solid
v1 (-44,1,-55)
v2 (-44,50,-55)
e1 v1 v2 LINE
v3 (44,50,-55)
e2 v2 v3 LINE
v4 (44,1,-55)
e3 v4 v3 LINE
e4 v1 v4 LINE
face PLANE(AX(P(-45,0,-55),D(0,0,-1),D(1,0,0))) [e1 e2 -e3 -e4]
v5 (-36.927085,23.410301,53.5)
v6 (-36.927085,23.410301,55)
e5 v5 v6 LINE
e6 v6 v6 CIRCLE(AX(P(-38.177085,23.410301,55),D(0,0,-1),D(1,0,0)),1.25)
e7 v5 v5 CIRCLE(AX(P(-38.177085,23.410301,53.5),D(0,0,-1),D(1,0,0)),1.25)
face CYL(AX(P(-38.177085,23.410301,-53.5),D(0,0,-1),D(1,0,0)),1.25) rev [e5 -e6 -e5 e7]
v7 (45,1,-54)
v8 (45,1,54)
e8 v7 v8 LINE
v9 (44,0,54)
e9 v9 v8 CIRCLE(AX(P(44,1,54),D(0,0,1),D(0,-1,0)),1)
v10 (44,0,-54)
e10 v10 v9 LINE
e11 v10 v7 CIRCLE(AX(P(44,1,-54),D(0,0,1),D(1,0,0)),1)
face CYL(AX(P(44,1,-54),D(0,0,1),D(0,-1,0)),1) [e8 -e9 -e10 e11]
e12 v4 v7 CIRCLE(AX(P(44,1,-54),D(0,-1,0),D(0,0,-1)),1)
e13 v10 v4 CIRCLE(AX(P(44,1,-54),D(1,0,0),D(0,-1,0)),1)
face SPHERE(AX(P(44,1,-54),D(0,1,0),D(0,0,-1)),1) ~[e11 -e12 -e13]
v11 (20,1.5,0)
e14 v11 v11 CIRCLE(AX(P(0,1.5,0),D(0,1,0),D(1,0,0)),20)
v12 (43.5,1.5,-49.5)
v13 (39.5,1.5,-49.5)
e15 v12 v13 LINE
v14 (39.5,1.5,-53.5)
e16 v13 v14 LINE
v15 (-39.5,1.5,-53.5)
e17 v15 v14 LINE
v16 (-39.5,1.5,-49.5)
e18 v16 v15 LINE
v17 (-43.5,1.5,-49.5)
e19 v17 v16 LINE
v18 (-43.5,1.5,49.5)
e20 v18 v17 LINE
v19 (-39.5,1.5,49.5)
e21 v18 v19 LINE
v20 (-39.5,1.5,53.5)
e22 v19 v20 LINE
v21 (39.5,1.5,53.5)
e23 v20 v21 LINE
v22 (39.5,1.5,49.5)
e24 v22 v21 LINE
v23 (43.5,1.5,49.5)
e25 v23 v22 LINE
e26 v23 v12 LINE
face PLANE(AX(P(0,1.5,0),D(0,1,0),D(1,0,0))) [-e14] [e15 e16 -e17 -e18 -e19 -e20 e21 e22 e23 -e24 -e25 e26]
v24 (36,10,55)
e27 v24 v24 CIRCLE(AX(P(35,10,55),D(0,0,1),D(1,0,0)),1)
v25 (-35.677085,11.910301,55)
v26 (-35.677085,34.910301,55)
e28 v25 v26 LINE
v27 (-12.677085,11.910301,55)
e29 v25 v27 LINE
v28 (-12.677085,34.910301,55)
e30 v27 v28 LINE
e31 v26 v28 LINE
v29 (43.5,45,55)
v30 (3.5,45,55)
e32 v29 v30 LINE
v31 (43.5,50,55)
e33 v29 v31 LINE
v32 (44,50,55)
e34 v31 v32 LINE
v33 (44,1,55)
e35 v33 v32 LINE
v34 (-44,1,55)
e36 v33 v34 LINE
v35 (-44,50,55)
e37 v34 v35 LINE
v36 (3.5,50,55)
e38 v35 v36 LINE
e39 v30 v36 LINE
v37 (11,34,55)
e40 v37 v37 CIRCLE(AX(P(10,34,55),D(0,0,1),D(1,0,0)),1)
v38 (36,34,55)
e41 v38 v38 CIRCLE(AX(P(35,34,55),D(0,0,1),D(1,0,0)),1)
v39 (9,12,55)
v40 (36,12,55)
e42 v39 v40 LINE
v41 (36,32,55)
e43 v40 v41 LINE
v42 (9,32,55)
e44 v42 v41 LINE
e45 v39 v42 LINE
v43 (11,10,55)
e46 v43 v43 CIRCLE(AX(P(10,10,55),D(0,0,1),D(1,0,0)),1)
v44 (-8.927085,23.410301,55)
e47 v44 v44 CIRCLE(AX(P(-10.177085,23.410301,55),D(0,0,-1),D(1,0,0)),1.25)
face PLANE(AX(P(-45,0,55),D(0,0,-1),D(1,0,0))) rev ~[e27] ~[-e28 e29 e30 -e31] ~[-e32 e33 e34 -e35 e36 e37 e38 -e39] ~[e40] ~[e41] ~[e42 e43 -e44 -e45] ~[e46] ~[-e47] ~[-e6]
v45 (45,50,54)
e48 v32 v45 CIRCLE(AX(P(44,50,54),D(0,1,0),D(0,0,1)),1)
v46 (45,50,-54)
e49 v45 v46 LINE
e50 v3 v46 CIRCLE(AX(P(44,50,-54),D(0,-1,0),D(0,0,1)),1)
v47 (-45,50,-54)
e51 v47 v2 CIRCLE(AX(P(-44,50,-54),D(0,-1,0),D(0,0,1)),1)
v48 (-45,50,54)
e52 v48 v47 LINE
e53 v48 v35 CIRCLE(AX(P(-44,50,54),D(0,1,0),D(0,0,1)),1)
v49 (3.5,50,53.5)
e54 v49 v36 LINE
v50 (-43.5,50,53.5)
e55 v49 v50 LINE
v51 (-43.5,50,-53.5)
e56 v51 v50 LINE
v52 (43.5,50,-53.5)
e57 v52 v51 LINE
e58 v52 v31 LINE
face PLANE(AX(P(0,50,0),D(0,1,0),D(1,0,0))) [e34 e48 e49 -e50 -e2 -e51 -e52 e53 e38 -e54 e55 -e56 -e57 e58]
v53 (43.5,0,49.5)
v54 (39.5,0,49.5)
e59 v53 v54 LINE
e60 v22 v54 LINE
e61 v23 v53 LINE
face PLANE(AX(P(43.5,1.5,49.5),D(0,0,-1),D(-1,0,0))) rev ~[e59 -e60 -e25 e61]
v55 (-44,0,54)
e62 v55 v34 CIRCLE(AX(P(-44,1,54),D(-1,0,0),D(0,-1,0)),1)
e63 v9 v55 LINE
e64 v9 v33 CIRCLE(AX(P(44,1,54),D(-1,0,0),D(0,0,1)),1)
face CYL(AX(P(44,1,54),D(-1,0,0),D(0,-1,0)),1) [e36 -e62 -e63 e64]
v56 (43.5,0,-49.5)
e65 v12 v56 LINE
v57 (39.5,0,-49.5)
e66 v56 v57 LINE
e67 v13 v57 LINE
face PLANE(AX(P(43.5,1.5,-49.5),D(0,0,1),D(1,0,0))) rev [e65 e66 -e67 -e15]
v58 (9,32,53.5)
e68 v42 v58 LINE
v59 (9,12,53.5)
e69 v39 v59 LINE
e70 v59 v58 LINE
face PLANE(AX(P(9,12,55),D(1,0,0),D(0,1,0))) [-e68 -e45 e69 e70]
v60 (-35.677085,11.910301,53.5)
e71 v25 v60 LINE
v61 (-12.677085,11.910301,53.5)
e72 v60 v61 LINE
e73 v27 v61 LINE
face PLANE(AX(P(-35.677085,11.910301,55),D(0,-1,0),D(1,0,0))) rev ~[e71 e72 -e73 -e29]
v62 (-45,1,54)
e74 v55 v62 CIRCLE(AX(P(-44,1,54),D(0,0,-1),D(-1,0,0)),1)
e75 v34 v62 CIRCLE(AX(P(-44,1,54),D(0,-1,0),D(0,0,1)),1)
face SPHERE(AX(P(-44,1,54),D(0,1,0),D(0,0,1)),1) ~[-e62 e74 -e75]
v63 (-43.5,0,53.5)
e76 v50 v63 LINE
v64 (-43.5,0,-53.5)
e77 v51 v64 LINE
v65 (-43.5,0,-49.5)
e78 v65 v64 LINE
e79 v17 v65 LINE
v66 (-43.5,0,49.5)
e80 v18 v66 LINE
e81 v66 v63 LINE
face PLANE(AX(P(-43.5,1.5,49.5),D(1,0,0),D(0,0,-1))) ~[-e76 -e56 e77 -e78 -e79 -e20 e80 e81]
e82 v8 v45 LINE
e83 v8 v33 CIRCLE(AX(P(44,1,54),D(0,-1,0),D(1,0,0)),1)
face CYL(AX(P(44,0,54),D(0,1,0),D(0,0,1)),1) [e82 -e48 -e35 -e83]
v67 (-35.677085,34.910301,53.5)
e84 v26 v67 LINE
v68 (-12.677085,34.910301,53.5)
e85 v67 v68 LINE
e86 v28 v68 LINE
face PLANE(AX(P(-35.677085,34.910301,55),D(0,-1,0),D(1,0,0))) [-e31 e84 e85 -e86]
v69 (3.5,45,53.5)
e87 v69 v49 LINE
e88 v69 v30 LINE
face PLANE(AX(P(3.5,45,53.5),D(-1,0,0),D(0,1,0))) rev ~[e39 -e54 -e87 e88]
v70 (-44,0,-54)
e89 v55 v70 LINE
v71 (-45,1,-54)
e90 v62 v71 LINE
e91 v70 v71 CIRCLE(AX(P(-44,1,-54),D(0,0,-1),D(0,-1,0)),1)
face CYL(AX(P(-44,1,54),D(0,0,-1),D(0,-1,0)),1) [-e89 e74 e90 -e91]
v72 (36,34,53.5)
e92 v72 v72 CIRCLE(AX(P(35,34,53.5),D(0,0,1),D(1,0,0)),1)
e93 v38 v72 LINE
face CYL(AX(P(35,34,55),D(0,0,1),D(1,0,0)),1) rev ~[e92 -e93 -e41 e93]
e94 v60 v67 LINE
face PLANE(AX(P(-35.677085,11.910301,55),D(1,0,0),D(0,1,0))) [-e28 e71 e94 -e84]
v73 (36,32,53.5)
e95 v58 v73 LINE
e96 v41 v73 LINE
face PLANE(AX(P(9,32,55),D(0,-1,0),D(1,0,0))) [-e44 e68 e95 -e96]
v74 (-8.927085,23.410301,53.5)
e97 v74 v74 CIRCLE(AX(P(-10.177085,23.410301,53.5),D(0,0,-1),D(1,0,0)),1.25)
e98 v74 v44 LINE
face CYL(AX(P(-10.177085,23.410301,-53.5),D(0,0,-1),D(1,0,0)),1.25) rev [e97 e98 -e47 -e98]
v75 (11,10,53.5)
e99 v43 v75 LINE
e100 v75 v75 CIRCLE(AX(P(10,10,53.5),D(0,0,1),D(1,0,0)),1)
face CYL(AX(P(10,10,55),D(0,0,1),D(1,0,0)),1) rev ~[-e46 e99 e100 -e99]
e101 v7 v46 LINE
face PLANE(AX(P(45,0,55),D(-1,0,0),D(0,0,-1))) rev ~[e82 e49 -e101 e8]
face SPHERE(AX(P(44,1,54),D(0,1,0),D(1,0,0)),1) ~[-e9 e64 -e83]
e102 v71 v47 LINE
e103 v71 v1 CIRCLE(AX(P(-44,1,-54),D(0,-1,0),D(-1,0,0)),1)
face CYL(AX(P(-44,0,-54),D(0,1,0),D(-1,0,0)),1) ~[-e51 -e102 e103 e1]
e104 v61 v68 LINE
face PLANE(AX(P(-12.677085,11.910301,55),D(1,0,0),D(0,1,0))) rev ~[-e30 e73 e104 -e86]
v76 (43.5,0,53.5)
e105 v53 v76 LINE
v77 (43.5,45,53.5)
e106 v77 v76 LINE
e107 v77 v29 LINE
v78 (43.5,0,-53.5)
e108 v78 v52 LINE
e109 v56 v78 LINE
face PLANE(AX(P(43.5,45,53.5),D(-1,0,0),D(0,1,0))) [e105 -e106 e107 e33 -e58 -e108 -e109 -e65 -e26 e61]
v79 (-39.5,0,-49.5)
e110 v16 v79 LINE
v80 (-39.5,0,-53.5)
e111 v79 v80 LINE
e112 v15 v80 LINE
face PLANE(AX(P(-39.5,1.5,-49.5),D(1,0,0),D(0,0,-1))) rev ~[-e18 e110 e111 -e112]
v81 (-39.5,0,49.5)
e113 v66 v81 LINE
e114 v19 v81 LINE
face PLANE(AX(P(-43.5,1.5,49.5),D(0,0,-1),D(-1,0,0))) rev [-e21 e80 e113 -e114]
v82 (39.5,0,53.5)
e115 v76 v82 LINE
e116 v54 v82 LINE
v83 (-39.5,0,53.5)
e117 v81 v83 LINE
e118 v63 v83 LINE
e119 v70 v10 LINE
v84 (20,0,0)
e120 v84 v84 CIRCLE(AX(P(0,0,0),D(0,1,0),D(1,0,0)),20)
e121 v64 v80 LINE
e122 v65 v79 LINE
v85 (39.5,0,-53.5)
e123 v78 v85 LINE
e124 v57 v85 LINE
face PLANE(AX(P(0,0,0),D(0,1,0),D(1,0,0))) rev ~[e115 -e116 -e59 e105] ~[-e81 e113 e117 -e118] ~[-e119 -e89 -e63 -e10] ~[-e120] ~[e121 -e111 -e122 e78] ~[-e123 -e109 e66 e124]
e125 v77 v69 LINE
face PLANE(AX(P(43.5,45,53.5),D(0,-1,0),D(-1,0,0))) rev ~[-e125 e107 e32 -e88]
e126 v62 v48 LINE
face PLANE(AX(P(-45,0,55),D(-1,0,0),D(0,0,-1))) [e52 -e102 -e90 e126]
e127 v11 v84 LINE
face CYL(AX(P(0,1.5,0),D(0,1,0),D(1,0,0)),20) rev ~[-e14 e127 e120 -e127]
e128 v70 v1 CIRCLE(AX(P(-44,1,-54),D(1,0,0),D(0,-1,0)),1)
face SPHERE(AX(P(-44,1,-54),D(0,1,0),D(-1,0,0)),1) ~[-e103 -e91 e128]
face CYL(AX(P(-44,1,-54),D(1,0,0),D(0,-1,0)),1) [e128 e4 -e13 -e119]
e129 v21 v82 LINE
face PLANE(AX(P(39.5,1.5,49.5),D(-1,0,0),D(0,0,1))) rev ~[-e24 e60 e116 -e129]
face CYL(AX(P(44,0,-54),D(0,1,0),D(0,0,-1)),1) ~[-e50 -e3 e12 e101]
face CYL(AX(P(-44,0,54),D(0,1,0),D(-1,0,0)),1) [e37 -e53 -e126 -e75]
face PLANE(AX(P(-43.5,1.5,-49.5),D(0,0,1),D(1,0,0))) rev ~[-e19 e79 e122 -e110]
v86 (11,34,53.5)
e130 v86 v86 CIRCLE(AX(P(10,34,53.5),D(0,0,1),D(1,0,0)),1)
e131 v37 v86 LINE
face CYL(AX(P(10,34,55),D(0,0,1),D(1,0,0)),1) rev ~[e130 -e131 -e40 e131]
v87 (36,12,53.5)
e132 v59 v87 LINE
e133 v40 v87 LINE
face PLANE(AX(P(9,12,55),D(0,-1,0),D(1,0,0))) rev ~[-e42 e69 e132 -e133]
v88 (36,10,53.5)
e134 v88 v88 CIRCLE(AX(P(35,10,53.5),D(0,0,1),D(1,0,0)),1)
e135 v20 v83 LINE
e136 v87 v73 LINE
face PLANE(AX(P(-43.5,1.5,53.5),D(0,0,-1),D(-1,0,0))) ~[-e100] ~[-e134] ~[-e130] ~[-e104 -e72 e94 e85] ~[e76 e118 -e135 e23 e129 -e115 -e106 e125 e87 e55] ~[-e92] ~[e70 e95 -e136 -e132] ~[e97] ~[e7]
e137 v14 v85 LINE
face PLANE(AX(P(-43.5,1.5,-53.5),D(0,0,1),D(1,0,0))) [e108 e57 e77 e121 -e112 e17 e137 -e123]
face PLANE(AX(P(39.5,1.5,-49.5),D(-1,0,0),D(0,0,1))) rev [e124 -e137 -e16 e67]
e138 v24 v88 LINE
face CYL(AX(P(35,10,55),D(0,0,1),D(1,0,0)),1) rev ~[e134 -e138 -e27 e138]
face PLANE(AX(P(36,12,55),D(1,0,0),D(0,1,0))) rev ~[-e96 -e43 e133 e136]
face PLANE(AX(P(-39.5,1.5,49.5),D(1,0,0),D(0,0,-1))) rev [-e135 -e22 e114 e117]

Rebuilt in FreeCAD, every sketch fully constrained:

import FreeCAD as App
import Part
import Sketcher

V = App.Vector
Q = App.Units.Quantity


def edges_at(feature, points):
    """Names of the edges that pass closest to the given points."""
    edges = feature.Shape.Edges
    near = lambda p: min(range(len(edges)), key=lambda i: edges[i].distToShape(Part.Vertex(*p))[0])
    return sorted({f"Edge{near(p) + 1}" for p in points})


def faces_at(feature, points):
    """Names of the faces that lie closest to the given points."""
    faces = feature.Shape.Faces
    near = lambda p: min(range(len(faces)), key=lambda i: faces[i].distToShape(Part.Vertex(*p))[0])
    return sorted({f"Face{near(p) + 1}" for p in points})


def add_polygon(sketch, points):
    """Adds a closed chain of lines whose ends are joined by coincident constraints."""
    first, n = sketch.GeometryCount, len(points)
    for a, b in zip(points, points[1:] + points[:1]):
        sketch.addGeometry(Part.LineSegment(App.Vector(*a, 0), App.Vector(*b, 0)), False)
    for i in range(n):
        sketch.addConstraint(Sketcher.Constraint("Coincident", first + i, 2, first + (i + 1) % n, 1))

doc = App.newDocument("Part")
body = doc.addObject("PartDesign::Body", "Body")

sketch1 = body.newObject("Sketcher::SketchObject", "Sketch")
sketch1.AttachmentSupport = (doc.getObject("XZ_Plane"), [""])
sketch1.MapMode = "FlatFace"
add_polygon(sketch1, [(-45, -55), (-45, 55), (45, 55), (45, -55)])
sketch1.addConstraint(Sketcher.Constraint("Vertical", 0))
sketch1.addConstraint(Sketcher.Constraint("Horizontal", 1))
sketch1.addConstraint(Sketcher.Constraint("Vertical", 2))
sketch1.addConstraint(Sketcher.Constraint("Horizontal", 3))
sketch1.addConstraint(Sketcher.Constraint("Symmetric", 0, 2, 2, 2, -1, 1))
sketch1.addConstraint(Sketcher.Constraint("DistanceX", 1, 1, 1, 2, Q("90 mm")))
sketch1.addConstraint(Sketcher.Constraint("DistanceY", 0, 1, 0, 2, Q("110 mm")))
pad1 = body.newObject("PartDesign::Pad", "Pad")
pad1.Profile = sketch1
pad1.Length = 50
pad1.Reversed = True
doc.recompute()

thickness = body.newObject("PartDesign::Thickness", "Thickness")
thickness.Base = (pad1, faces_at(pad1, [(0, 50, 0)]))
thickness.Value = 1.5
thickness.Reversed = True
thickness.Join = "Intersection"

sketch2 = body.newObject("Sketcher::SketchObject", "Sketch001")
sketch2.AttachmentSupport = (doc.getObject("XZ_Plane"), [""])
sketch2.MapMode = "FlatFace"
sketch2.AttachmentOffset = App.Placement(V(0, 0, -1.5), App.Rotation())
add_polygon(sketch2, [(-43.5, -53.5), (-43.5, -49.5), (-39.5, -49.5), (-39.5, -53.5)])
sketch2.addConstraint(Sketcher.Constraint("Vertical", 0))
sketch2.addConstraint(Sketcher.Constraint("Horizontal", 1))
sketch2.addConstraint(Sketcher.Constraint("Vertical", 2))
sketch2.addConstraint(Sketcher.Constraint("Horizontal", 3))
sketch2.addConstraint(Sketcher.Constraint("Equal", 3, 0))
sketch2.addConstraint(Sketcher.Constraint("DistanceX", 1, 1, 1, 2, Q("4 mm")))
sketch2.addConstraint(Sketcher.Constraint("DistanceX", 0, 2, -1, 1, Q("43.5 mm")))
sketch2.addConstraint(Sketcher.Constraint("DistanceY", 0, 2, -1, 1, Q("49.5 mm")))
pocket1 = body.newObject("PartDesign::Pocket", "Pocket")
pocket1.Profile = sketch2
pocket1.Length = 50
pocket1.Reversed = True
doc.recompute()

mirrored = body.newObject("PartDesign::Mirrored", "Mirrored")
mirrored.Originals = [pocket1]
mirrored.MirrorPlane = (doc.getObject("XY_Plane"), [""])
body.Tip = mirrored
doc.recompute()

mirrored2 = body.newObject("PartDesign::Mirrored", "Mirrored001")
mirrored2.Originals = [pocket1]
mirrored2.MirrorPlane = (doc.getObject("YZ_Plane"), [""])
body.Tip = mirrored2

sketch3 = body.newObject("Sketcher::SketchObject", "Sketch002")
sketch3.AttachmentSupport = (doc.getObject("XZ_Plane"), [""])
sketch3.MapMode = "FlatFace"
sketch3.AttachmentOffset = App.Placement(V(0, 0, -1.5), App.Rotation())
add_polygon(sketch3, [(43.5, 53.5), (43.5, 49.5), (39.5, 49.5), (39.5, 53.5)])
sketch3.addConstraint(Sketcher.Constraint("Vertical", 0))
sketch3.addConstraint(Sketcher.Constraint("Horizontal", 1))
sketch3.addConstraint(Sketcher.Constraint("Vertical", 2))
sketch3.addConstraint(Sketcher.Constraint("Horizontal", 3))
sketch3.addConstraint(Sketcher.Constraint("Equal", 3, 0))
sketch3.addConstraint(Sketcher.Constraint("DistanceX", 1, 2, 1, 1, Q("4 mm")))
sketch3.addConstraint(Sketcher.Constraint("DistanceX", -1, 1, 0, 2, Q("43.5 mm")))
sketch3.addConstraint(Sketcher.Constraint("DistanceY", -1, 1, 0, 2, Q("49.5 mm")))
pocket2 = body.newObject("PartDesign::Pocket", "Pocket001")
pocket2.Profile = sketch3
pocket2.Length = 50
pocket2.Reversed = True

sketch4 = body.newObject("Sketcher::SketchObject", "Sketch003")
sketch4.AttachmentSupport = (doc.getObject("XZ_Plane"), [""])
sketch4.MapMode = "FlatFace"
sketch4.AttachmentOffset = App.Placement(V(0, 0, -1.5), App.Rotation())
sketch4.addGeometry(Part.Circle(V(0, 0, 0), V(0, 0, 1), 20), False)
sketch4.addConstraint(Sketcher.Constraint("Coincident", 0, 3, -1, 1))
sketch4.addConstraint(Sketcher.Constraint("Diameter", 0, Q("40 mm")))
pocket3 = body.newObject("PartDesign::Pocket", "Pocket002")
pocket3.Profile = sketch4
pocket3.Length = 50
pocket3.Reversed = True

sketch5 = body.newObject("Sketcher::SketchObject", "Sketch004")
sketch5.AttachmentSupport = (doc.getObject("XY_Plane"), [""])
sketch5.MapMode = "FlatFace"
sketch5.AttachmentOffset = App.Placement(V(0, 0, 55), App.Rotation())
add_polygon(sketch5, [(-35.677085, 34.910301), (-35.677085, 11.910301), (-12.677085, 11.910301), (-12.677085, 34.910301)])
sketch5.addConstraint(Sketcher.Constraint("Vertical", 0))
sketch5.addConstraint(Sketcher.Constraint("Horizontal", 1))
sketch5.addConstraint(Sketcher.Constraint("Vertical", 2))
sketch5.addConstraint(Sketcher.Constraint("Horizontal", 3))
sketch5.addConstraint(Sketcher.Constraint("Equal", 3, 0))
sketch5.addConstraint(Sketcher.Constraint("DistanceX", 1, 1, 1, 2, Q("23 mm")))
sketch5.addConstraint(Sketcher.Constraint("DistanceY", -1, 1, 0, 2, Q("11.910301 mm")))
sketch5.addConstraint(Sketcher.Constraint("DistanceX", 0, 2, -1, 1, Q("35.677085 mm")))
pocket4 = body.newObject("PartDesign::Pocket", "Pocket003")
pocket4.Profile = sketch5
pocket4.Length = 50

sketch6 = body.newObject("Sketcher::SketchObject", "Sketch005")
sketch6.AttachmentSupport = (doc.getObject("XY_Plane"), [""])
sketch6.MapMode = "FlatFace"
sketch6.AttachmentOffset = App.Placement(V(0, 0, -53.5), App.Rotation())
sketch6.addGeometry(Part.Circle(V(-10.177085, 23.410301, 0), V(0, 0, 1), 1.25), False)
sketch6.addGeometry(Part.Circle(V(-38.177085, 23.410301, 0), V(0, 0, 1), 1.25), False)
sketch6.addConstraint(Sketcher.Constraint("Equal", 0, 1))
sketch6.addConstraint(Sketcher.Constraint("Horizontal", 0, 3, 1, 3))
sketch6.addConstraint(Sketcher.Constraint("Diameter", 0, Q("2.5 mm")))
sketch6.addConstraint(Sketcher.Constraint("DistanceX", 1, 3, 0, 3, Q("28 mm")))
sketch6.addConstraint(Sketcher.Constraint("DistanceY", -1, 1, 0, 3, Q("23.410301 mm")))
sketch6.addConstraint(Sketcher.Constraint("DistanceX", 0, 3, -1, 1, Q("10.177085 mm")))
pocket5 = body.newObject("PartDesign::Pocket", "Pocket004")
pocket5.Profile = sketch6
pocket5.Length = 129
pocket5.Reversed = True

sketch7 = body.newObject("Sketcher::SketchObject", "Sketch006")
sketch7.AttachmentSupport = (doc.getObject("XY_Plane"), [""])
sketch7.MapMode = "FlatFace"
sketch7.AttachmentOffset = App.Placement(V(0, 0, 55), App.Rotation())
add_polygon(sketch7, [(9, 32), (9, 12), (36, 12), (36, 32)])
sketch7.addConstraint(Sketcher.Constraint("Vertical", 0))
sketch7.addConstraint(Sketcher.Constraint("Horizontal", 1))
sketch7.addConstraint(Sketcher.Constraint("Vertical", 2))
sketch7.addConstraint(Sketcher.Constraint("Horizontal", 3))
sketch7.addConstraint(Sketcher.Constraint("DistanceX", 1, 1, 1, 2, Q("27 mm")))
sketch7.addConstraint(Sketcher.Constraint("DistanceY", 0, 2, 0, 1, Q("20 mm")))
sketch7.addConstraint(Sketcher.Constraint("DistanceX", -1, 1, 0, 2, Q("9 mm")))
sketch7.addConstraint(Sketcher.Constraint("DistanceY", -1, 1, 0, 2, Q("12 mm")))
pocket6 = body.newObject("PartDesign::Pocket", "Pocket005")
pocket6.Profile = sketch7
pocket6.Length = 50

sketch8 = body.newObject("Sketcher::SketchObject", "Sketch007")
sketch8.AttachmentSupport = (doc.getObject("XY_Plane"), [""])
sketch8.MapMode = "FlatFace"
sketch8.AttachmentOffset = App.Placement(V(0, 0, 55), App.Rotation())
sketch8.addGeometry(Part.Circle(V(35, 34, 0), V(0, 0, 1), 1), False)
sketch8.addConstraint(Sketcher.Constraint("Diameter", 0, Q("2 mm")))
sketch8.addConstraint(Sketcher.Constraint("DistanceX", -1, 1, 0, 3, Q("35 mm")))
sketch8.addConstraint(Sketcher.Constraint("DistanceY", -1, 1, 0, 3, Q("34 mm")))
pocket7 = body.newObject("PartDesign::Pocket", "Pocket006")
pocket7.Profile = sketch8
pocket7.Length = 50

sketch9 = body.newObject("Sketcher::SketchObject", "Sketch008")
sketch9.AttachmentSupport = (doc.getObject("XY_Plane"), [""])
sketch9.MapMode = "FlatFace"
sketch9.AttachmentOffset = App.Placement(V(0, 0, 55), App.Rotation())
sketch9.addGeometry(Part.Circle(V(35, 10, 0), V(0, 0, 1), 1), False)
sketch9.addConstraint(Sketcher.Constraint("Diameter", 0, Q("2 mm")))
sketch9.addConstraint(Sketcher.Constraint("DistanceX", -1, 1, 0, 3, Q("35 mm")))
sketch9.addConstraint(Sketcher.Constraint("DistanceY", -1, 1, 0, 3, Q("10 mm")))
pocket8 = body.newObject("PartDesign::Pocket", "Pocket007")
pocket8.Profile = sketch9
pocket8.Length = 50

sketch10 = body.newObject("Sketcher::SketchObject", "Sketch009")
sketch10.AttachmentSupport = (doc.getObject("XY_Plane"), [""])
sketch10.MapMode = "FlatFace"
sketch10.AttachmentOffset = App.Placement(V(0, 0, 55), App.Rotation())
sketch10.addGeometry(Part.Circle(V(10, 34, 0), V(0, 0, 1), 1), False)
sketch10.addConstraint(Sketcher.Constraint("Diameter", 0, Q("2 mm")))
sketch10.addConstraint(Sketcher.Constraint("DistanceX", -1, 1, 0, 3, Q("10 mm")))
sketch10.addConstraint(Sketcher.Constraint("DistanceY", -1, 1, 0, 3, Q("34 mm")))
pocket9 = body.newObject("PartDesign::Pocket", "Pocket008")
pocket9.Profile = sketch10
pocket9.Length = 50

sketch11 = body.newObject("Sketcher::SketchObject", "Sketch010")
sketch11.AttachmentSupport = (doc.getObject("XY_Plane"), [""])
sketch11.MapMode = "FlatFace"
sketch11.AttachmentOffset = App.Placement(V(0, 0, 55), App.Rotation())
sketch11.addGeometry(Part.Circle(V(10, 10, 0), V(0, 0, 1), 1), False)
sketch11.addConstraint(Sketcher.Constraint("Diameter", 0, Q("2 mm")))
sketch11.addConstraint(Sketcher.Constraint("DistanceX", -1, 1, 0, 3, Q("10 mm")))
sketch11.addConstraint(Sketcher.Constraint("DistanceY", -1, 1, 0, 3, Q("10 mm")))
pocket10 = body.newObject("PartDesign::Pocket", "Pocket009")
pocket10.Profile = sketch11
pocket10.Length = 50
doc.recompute()

fillet = body.newObject("PartDesign::Fillet", "Fillet")
fillet.Base = (pocket10, edges_at(pocket10, [
    (-45, 25, -55),
    (45, 25, -55),
    (45, 25, 55),
    (-45, 25, 55),
]))
fillet.Radius = 1
doc.recompute()

fillet2 = body.newObject("PartDesign::Fillet", "Fillet001")
fillet2.Base = (fillet, edges_at(fillet, [
    (0, 0, -55),
    (-45, 0, 0),
    (45, 0, 0),
    (0, 0, 55),
    (44.707, 0, 54.707),
    (-44.707, 0, 54.707),
    (-44.707, 0, -54.707),
    (44.707, 0, -54.707),
]))
fillet2.Radius = 1

sketch12 = body.newObject("Sketcher::SketchObject", "Sketch011")
sketch12.AttachmentSupport = (doc.getObject("XY_Plane"), [""])
sketch12.MapMode = "FlatFace"
sketch12.AttachmentOffset = App.Placement(V(0, 0, 53.5), App.Rotation())
add_polygon(sketch12, [(43.5, 50), (43.5, 45), (3.5, 45), (3.5, 50)])
sketch12.addConstraint(Sketcher.Constraint("Vertical", 0))
sketch12.addConstraint(Sketcher.Constraint("Horizontal", 1))
sketch12.addConstraint(Sketcher.Constraint("Vertical", 2))
sketch12.addConstraint(Sketcher.Constraint("Horizontal", 3))
sketch12.addConstraint(Sketcher.Constraint("DistanceX", 1, 2, 1, 1, Q("40 mm")))
sketch12.addConstraint(Sketcher.Constraint("DistanceY", 0, 2, 0, 1, Q("5 mm")))
sketch12.addConstraint(Sketcher.Constraint("DistanceY", -1, 1, 0, 2, Q("45 mm")))
sketch12.addConstraint(Sketcher.Constraint("DistanceX", -1, 1, 0, 2, Q("43.5 mm")))
pocket11 = body.newObject("PartDesign::Pocket", "Pocket010")
pocket11.Profile = sketch12
pocket11.Length = 50
pocket11.Reversed = True

doc.recompute()
